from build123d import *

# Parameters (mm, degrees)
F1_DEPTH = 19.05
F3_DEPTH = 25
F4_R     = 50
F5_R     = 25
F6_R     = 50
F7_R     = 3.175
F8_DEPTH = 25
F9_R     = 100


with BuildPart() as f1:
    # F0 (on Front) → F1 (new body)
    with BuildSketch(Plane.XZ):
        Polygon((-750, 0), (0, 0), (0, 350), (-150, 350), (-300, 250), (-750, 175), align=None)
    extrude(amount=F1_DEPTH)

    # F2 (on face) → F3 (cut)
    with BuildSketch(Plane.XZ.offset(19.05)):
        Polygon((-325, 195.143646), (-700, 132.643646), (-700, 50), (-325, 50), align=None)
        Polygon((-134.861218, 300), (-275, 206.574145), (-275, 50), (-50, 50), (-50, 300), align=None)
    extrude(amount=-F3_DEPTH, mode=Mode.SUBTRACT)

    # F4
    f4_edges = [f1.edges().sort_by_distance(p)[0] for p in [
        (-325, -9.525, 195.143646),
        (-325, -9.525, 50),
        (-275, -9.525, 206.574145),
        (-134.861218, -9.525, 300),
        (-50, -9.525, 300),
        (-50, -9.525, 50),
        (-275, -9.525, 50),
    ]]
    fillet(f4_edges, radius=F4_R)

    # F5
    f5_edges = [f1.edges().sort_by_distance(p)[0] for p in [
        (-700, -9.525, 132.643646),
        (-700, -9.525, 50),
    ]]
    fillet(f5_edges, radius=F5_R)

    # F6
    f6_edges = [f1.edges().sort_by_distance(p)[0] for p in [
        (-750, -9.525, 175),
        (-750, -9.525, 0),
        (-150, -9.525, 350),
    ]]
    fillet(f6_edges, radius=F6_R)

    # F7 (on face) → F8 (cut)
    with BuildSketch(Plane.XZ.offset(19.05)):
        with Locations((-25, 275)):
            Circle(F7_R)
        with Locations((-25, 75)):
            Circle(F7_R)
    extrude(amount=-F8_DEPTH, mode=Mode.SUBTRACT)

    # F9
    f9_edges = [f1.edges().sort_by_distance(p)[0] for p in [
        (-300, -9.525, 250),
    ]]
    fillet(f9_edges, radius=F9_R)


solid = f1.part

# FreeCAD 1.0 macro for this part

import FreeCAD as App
import Part
import Sketcher
from FreeCAD import Vector


def edges_at(feature, points):
    """Names of the edges that pass closest to the given points."""
    edges = feature.Shape.Edges
    near = lambda p: min(range(len(edges)), key=lambda i: edges[i].distToShape(Part.Vertex(*p))[0])
    return sorted({f"Edge{near(p) + 1}" for p in points})


def add_polygon(sketch, points):
    """Adds a closed chain of lines whose ends are joined by coincident constraints."""
    first, n = sketch.GeometryCount, len(points)
    for a, b in zip(points, points[1:] + points[:1]):
        sketch.addGeometry(Part.LineSegment(App.Vector(*a, 0), App.Vector(*b, 0)), False)
    for i in range(n):
        sketch.addConstraint(Sketcher.Constraint("Coincident", first + i, 2, first + (i + 1) % n, 1))

doc = App.newDocument("Part")
body = doc.addObject("PartDesign::Body", "Body")

sketch1 = doc.addObject("Sketcher::SketchObject", "Sketch")
body.addObject(sketch1)
sketch1.AttachmentSupport = (doc.XZ_Plane, [""])
sketch1.MapMode = "FlatFace"
add_polygon(sketch1, [(-750, 0), (0, 0), (0, 350), (-150, 350), (-300, 250), (-750, 175)])
sketch1.addConstraint([
    Sketcher.Constraint("Horizontal", 0),
    Sketcher.Constraint("Vertical", 1),
    Sketcher.Constraint("Horizontal", 2),
    Sketcher.Constraint("Vertical", 5),
    Sketcher.Constraint("Coincident", 0, 2, -1, 1),
    Sketcher.Constraint("DistanceX", 0, 1, 0, 2, 750.0),
    Sketcher.Constraint("DistanceX", 2, 2, 2, 1, 150.0),
    Sketcher.Constraint("DistanceY", 1, 1, 1, 2, 350.0),
    Sketcher.Constraint("DistanceY", 5, 2, 5, 1, 175.0),
    Sketcher.Constraint("DistanceX", 3, 2, -1, 1, 300.0),
    Sketcher.Constraint("DistanceY", -1, 1, 3, 2, 250.0),
])
pad1 = doc.addObject("PartDesign::Pad", "Pad")
body.addObject(pad1)
pad1.Profile = sketch1
pad1.Length = 19.05

sketch2 = doc.addObject("Sketcher::SketchObject", "Sketch001")
body.addObject(sketch2)
sketch2.AttachmentSupport = (doc.XZ_Plane, [""])
sketch2.MapMode = "FlatFace"
sketch2.AttachmentOffset = App.Placement(Vector(0, 0, 19.05), App.Rotation())
add_polygon(sketch2, [(-325, 195), (-700, 133), (-700, 50), (-325, 50)])
add_polygon(sketch2, [(-135, 300), (-275, 207), (-275, 50), (-50, 50), (-50, 300)])
sketch2.addConstraint([
    Sketcher.Constraint("Vertical", 1),
    Sketcher.Constraint("Horizontal", 2),
    Sketcher.Constraint("Vertical", 3),
    Sketcher.Constraint("Vertical", 5),
    Sketcher.Constraint("Horizontal", 6),
    Sketcher.Constraint("Vertical", 7),
    Sketcher.Constraint("Horizontal", 8),
    Sketcher.Constraint("Horizontal", 2, 2, 5, 2),
    Sketcher.Constraint("DistanceX", 2, 1, 2, 2, 375.0),
    Sketcher.Constraint("DistanceX", 6, 1, 6, 2, 225.0),
    Sketcher.Constraint("DistanceY", 7, 1, 7, 2, 250.0),
    Sketcher.Constraint("DistanceX", 0, 2, -1, 1, 700.0),
    Sketcher.Constraint("DistanceY", -1, 1, 1, 2, 50.0),
    Sketcher.Constraint("DistanceX", 4, 2, -1, 1, 275.0),
    Sketcher.Constraint("DistanceY", 0, 2, 3, 2, 62.5),
    Sketcher.Constraint("DistanceX", 8, 2, 8, 1, 84.861218),
    Sketcher.Constraint("DistanceY", 3, 2, 4, 2, 11.430499),
    Sketcher.Constraint("DistanceY", 1, 2, 1, 1, 82.643646),
])
pocket1 = doc.addObject("PartDesign::Pocket", "Pocket")
body.addObject(pocket1)
pocket1.Profile = sketch2
pocket1.Length = 25
doc.recompute()

fillet = doc.addObject("PartDesign::Fillet", "Fillet")
body.addObject(fillet)
fillet.Base = (pocket1, edges_at(pocket1, [
    (-325, -9.525, 195.144),
    (-325, -9.525, 50),
    (-275, -9.525, 206.574),
    (-134.861, -9.525, 300),
    (-50, -9.525, 300),
    (-50, -9.525, 50),
    (-275, -9.525, 50),
]))
fillet.Radius = 50
doc.recompute()

fillet2 = doc.addObject("PartDesign::Fillet", "Fillet001")
body.addObject(fillet2)
fillet2.Base = (fillet, edges_at(fillet, [(-700, -9.525, 132.644), (-700, -9.525, 50)]))
fillet2.Radius = 25
doc.recompute()

fillet3 = doc.addObject("PartDesign::Fillet", "Fillet002")
body.addObject(fillet3)
fillet3.Base = (fillet2, edges_at(fillet2, [(-750, -9.525, 175), (-750, -9.525, 0), (-150, -9.525, 350)]))
fillet3.Radius = 50

sketch3 = doc.addObject("Sketcher::SketchObject", "Sketch002")
body.addObject(sketch3)
sketch3.AttachmentSupport = (doc.XZ_Plane, [""])
sketch3.MapMode = "FlatFace"
sketch3.AttachmentOffset = App.Placement(Vector(0, 0, 19.05), App.Rotation())
sketch3.addGeometry([
    Part.Circle(Vector(-25, 275, 0), Vector(0, 0, 1), 3.2),
    Part.Circle(Vector(-25, 75, 0), Vector(0, 0, 1), 3.2),
], False)
sketch3.addConstraint([
    Sketcher.Constraint("Equal", 0, 1),
    Sketcher.Constraint("Vertical", 0, 3, 1, 3),
    Sketcher.Constraint("Diameter", 0, 6.35),
    Sketcher.Constraint("DistanceX", 0, 3, -1, 1, 25.0),
    Sketcher.Constraint("DistanceY", -1, 1, 0, 3, 275.0),
    Sketcher.Constraint("DistanceY", -1, 1, 1, 3, 75.0),
])
pocket2 = doc.addObject("PartDesign::Pocket", "Pocket001")
body.addObject(pocket2)
pocket2.Profile = sketch3
pocket2.Length = 25
doc.recompute()

fillet4 = doc.addObject("PartDesign::Fillet", "Fillet003")
body.addObject(fillet4)
fillet4.Base = (pocket2, edges_at(pocket2, [(-300, -9.525, 250)]))
fillet4.Radius = 100

doc.recompute()
